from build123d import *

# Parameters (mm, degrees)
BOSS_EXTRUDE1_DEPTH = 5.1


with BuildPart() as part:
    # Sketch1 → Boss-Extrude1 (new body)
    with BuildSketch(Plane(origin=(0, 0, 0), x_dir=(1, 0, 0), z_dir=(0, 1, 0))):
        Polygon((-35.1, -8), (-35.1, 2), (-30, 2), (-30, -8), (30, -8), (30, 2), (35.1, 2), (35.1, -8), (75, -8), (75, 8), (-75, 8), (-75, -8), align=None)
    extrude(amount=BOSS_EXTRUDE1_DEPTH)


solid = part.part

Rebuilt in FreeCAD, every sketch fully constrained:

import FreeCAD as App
import Part
import Sketcher

V = App.Vector

doc = App.newDocument("Part")
body = doc.addObject("PartDesign::Body", "Body")

sketch1 = doc.addObject("Sketcher::SketchObject", "Sketch")
body.addObject(sketch1)
sketch1.AttachmentSupport = (doc.XZ_Plane, [""])
sketch1.MapMode = "FlatFace"
sketch1.addGeometry([
    Part.LineSegment(V(-35, 8, 0), V(-35, -2, 0)),
    Part.LineSegment(V(-35, -2, 0), V(-30, -2, 0)),
    Part.LineSegment(V(-30, -2, 0), V(-30, 8, 0)),
    Part.LineSegment(V(-30, 8, 0), V(30, 8, 0)),
    Part.LineSegment(V(30, 8, 0), V(30, -2, 0)),
    Part.LineSegment(V(30, -2, 0), V(35, -2, 0)),
    Part.LineSegment(V(35, -2, 0), V(35, 8, 0)),
    Part.LineSegment(V(35, 8, 0), V(75, 8, 0)),
    Part.LineSegment(V(75, 8, 0), V(75, -8, 0)),
    Part.LineSegment(V(75, -8, 0), V(-75, -8, 0)),
    Part.LineSegment(V(-75, -8, 0), V(-75, 8, 0)),
    Part.LineSegment(V(-75, 8, 0), V(-35, 8, 0)),
], False)
sketch1.addConstraint([
    Sketcher.Constraint("Coincident", 0, 2, 1, 1),
    Sketcher.Constraint("Coincident", 1, 2, 2, 1),
    Sketcher.Constraint("Coincident", 2, 2, 3, 1),
    Sketcher.Constraint("Coincident", 3, 2, 4, 1),
    Sketcher.Constraint("Coincident", 4, 2, 5, 1),
    Sketcher.Constraint("Coincident", 5, 2, 6, 1),
    Sketcher.Constraint("Coincident", 6, 2, 7, 1),
    Sketcher.Constraint("Coincident", 7, 2, 8, 1),
    Sketcher.Constraint("Coincident", 8, 2, 9, 1),
    Sketcher.Constraint("Coincident", 9, 2, 10, 1),
    Sketcher.Constraint("Coincident", 10, 2, 11, 1),
    Sketcher.Constraint("Coincident", 11, 2, 0, 1),
    Sketcher.Constraint("Vertical", 0),
    Sketcher.Constraint("Horizontal", 1),
    Sketcher.Constraint("Vertical", 2),
    Sketcher.Constraint("Horizontal", 3),
    Sketcher.Constraint("Vertical", 4),
    Sketcher.Constraint("Horizontal", 5),
    Sketcher.Constraint("Vertical", 6),
    Sketcher.Constraint("Horizontal", 7),
    Sketcher.Constraint("Vertical", 8),
    Sketcher.Constraint("Horizontal", 9),
    Sketcher.Constraint("Vertical", 10),
    Sketcher.Constraint("Horizontal", 11),
    Sketcher.Constraint("Symmetric", 7, 2, 9, 2, -1, 1),
    Sketcher.Constraint("Symmetric", 1, 2, 4, 2, -2),
    Sketcher.Constraint("Symmetric", 6, 2, 11, 2, -2),
    Sketcher.Constraint("Horizontal", 3, 2, 6, 2),
    Sketcher.Constraint("DistanceX", 3, 1, 3, 2, 60.0),
    Sketcher.Constraint("DistanceX", 9, 2, 9, 1, 150.0),
    Sketcher.Constraint("DistanceY", 0, 2, 0, 1, 10.0),
    Sketcher.Constraint("DistanceY", 8, 2, 8, 1, 16.0),
    Sketcher.Constraint("DistanceX", 1, 1, 1, 2, 5.1),
])
pad1 = doc.addObject("PartDesign::Pad", "Pad")
body.addObject(pad1)
pad1.Profile = sketch1
pad1.Length = 5.1
pad1.Reversed = True

doc.recompute()
